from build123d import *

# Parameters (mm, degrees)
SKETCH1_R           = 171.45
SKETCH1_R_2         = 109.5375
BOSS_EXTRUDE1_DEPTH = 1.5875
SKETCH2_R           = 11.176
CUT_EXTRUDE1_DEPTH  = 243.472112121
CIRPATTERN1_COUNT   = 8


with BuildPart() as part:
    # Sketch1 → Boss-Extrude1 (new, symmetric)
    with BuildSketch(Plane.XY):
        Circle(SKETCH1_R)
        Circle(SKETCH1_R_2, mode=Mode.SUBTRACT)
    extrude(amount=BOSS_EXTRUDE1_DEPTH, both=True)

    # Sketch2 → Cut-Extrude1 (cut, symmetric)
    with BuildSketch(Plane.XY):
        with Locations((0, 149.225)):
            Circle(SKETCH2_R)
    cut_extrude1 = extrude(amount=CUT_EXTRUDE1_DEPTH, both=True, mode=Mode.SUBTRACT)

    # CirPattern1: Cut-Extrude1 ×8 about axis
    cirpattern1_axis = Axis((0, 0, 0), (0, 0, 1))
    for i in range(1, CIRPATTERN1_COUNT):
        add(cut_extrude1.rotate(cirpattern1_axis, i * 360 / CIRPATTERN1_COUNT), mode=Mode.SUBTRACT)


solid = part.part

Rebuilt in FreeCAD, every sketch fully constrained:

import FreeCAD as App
import Part
import Sketcher
Q = App.Units.Quantity

doc = App.newDocument("Part")
params = doc.addObject("Spreadsheet::Sheet", "Params")
for row, (alias, value) in enumerate([
    ("sketch1_diameter", "13.5 in"),
    ("sketch1_diameter2", "8.625 in"),
    ("pad1_length", "0.125 in"),
    ("sketch2_diameter", "0.88 in"),
    ("pocket1_length", "486.944224 mm"),
], start=1):
    params.set(f"A{row}", alias)
    params.set(f"B{row}", "=" + value)
    params.setAlias(f"B{row}", alias)

body = doc.addObject("PartDesign::Body", "Body")

# Sketch on XY plane
sketch1 = doc.addObject("Sketcher::SketchObject", "Sketch")
body.addObject(sketch1)
sketch1.AttachmentSupport = (doc.XY_Plane, [""])
sketch1.MapMode = "FlatFace"
sketch1.addGeometry([
    Part.Circle(App.Vector(0, 0, 0), App.Vector(0, 0, 1), 171),
    Part.Circle(App.Vector(0, 0, 0), App.Vector(0, 0, 1), 110),
], False)
sketch1.addConstraint([
    Sketcher.Constraint("Coincident", 0, 3, -1, 1),
    Sketcher.Constraint("Coincident", 1, 3, -1, 1),
    Sketcher.Constraint("Diameter", 0, Q("13.5 in")),
    Sketcher.Constraint("Diameter", 1, Q("8.625 in")),
])
sketch1.setExpression("Constraints[2]", "Params.sketch1_diameter")
sketch1.setExpression("Constraints[3]", "Params.sketch1_diameter2")
pad1 = doc.addObject("PartDesign::Pad", "Pad")
body.addObject(pad1)
pad1.Profile = sketch1
pad1.setExpression("Length", "Params.pad1_length")
pad1.Midplane = True

# Sketch on XY plane
sketch2 = doc.addObject("Sketcher::SketchObject", "Sketch001")
body.addObject(sketch2)
sketch2.AttachmentSupport = (doc.XY_Plane, [""])
sketch2.MapMode = "FlatFace"
sketch2.addGeometry(Part.Circle(App.Vector(0, 149, 0), App.Vector(0, 0, 1), 11), False)
sketch2.addConstraint([
    Sketcher.Constraint("PointOnObject", 0, 3, -2),
    Sketcher.Constraint("Diameter", 0, Q("0.88 in")),
    Sketcher.Constraint("DistanceY", -1, 1, 0, 3, Q("5.875 in")),
])
sketch2.setExpression("Constraints[1]", "Params.sketch2_diameter")
pocket1 = doc.addObject("PartDesign::Pocket", "Pocket")
body.addObject(pocket1)
pocket1.Profile = sketch2
pocket1.setExpression("Length", "Params.pocket1_length")
pocket1.Midplane = True
doc.recompute()

polarpattern = doc.addObject("PartDesign::PolarPattern", "PolarPattern")
body.addObject(polarpattern)
polarpattern.Originals = [pocket1]
polarpattern.Axis = (doc.Z_Axis, [""])
polarpattern.Angle = 360
polarpattern.Occurrences = 8
body.Tip = polarpattern

doc.recompute()
